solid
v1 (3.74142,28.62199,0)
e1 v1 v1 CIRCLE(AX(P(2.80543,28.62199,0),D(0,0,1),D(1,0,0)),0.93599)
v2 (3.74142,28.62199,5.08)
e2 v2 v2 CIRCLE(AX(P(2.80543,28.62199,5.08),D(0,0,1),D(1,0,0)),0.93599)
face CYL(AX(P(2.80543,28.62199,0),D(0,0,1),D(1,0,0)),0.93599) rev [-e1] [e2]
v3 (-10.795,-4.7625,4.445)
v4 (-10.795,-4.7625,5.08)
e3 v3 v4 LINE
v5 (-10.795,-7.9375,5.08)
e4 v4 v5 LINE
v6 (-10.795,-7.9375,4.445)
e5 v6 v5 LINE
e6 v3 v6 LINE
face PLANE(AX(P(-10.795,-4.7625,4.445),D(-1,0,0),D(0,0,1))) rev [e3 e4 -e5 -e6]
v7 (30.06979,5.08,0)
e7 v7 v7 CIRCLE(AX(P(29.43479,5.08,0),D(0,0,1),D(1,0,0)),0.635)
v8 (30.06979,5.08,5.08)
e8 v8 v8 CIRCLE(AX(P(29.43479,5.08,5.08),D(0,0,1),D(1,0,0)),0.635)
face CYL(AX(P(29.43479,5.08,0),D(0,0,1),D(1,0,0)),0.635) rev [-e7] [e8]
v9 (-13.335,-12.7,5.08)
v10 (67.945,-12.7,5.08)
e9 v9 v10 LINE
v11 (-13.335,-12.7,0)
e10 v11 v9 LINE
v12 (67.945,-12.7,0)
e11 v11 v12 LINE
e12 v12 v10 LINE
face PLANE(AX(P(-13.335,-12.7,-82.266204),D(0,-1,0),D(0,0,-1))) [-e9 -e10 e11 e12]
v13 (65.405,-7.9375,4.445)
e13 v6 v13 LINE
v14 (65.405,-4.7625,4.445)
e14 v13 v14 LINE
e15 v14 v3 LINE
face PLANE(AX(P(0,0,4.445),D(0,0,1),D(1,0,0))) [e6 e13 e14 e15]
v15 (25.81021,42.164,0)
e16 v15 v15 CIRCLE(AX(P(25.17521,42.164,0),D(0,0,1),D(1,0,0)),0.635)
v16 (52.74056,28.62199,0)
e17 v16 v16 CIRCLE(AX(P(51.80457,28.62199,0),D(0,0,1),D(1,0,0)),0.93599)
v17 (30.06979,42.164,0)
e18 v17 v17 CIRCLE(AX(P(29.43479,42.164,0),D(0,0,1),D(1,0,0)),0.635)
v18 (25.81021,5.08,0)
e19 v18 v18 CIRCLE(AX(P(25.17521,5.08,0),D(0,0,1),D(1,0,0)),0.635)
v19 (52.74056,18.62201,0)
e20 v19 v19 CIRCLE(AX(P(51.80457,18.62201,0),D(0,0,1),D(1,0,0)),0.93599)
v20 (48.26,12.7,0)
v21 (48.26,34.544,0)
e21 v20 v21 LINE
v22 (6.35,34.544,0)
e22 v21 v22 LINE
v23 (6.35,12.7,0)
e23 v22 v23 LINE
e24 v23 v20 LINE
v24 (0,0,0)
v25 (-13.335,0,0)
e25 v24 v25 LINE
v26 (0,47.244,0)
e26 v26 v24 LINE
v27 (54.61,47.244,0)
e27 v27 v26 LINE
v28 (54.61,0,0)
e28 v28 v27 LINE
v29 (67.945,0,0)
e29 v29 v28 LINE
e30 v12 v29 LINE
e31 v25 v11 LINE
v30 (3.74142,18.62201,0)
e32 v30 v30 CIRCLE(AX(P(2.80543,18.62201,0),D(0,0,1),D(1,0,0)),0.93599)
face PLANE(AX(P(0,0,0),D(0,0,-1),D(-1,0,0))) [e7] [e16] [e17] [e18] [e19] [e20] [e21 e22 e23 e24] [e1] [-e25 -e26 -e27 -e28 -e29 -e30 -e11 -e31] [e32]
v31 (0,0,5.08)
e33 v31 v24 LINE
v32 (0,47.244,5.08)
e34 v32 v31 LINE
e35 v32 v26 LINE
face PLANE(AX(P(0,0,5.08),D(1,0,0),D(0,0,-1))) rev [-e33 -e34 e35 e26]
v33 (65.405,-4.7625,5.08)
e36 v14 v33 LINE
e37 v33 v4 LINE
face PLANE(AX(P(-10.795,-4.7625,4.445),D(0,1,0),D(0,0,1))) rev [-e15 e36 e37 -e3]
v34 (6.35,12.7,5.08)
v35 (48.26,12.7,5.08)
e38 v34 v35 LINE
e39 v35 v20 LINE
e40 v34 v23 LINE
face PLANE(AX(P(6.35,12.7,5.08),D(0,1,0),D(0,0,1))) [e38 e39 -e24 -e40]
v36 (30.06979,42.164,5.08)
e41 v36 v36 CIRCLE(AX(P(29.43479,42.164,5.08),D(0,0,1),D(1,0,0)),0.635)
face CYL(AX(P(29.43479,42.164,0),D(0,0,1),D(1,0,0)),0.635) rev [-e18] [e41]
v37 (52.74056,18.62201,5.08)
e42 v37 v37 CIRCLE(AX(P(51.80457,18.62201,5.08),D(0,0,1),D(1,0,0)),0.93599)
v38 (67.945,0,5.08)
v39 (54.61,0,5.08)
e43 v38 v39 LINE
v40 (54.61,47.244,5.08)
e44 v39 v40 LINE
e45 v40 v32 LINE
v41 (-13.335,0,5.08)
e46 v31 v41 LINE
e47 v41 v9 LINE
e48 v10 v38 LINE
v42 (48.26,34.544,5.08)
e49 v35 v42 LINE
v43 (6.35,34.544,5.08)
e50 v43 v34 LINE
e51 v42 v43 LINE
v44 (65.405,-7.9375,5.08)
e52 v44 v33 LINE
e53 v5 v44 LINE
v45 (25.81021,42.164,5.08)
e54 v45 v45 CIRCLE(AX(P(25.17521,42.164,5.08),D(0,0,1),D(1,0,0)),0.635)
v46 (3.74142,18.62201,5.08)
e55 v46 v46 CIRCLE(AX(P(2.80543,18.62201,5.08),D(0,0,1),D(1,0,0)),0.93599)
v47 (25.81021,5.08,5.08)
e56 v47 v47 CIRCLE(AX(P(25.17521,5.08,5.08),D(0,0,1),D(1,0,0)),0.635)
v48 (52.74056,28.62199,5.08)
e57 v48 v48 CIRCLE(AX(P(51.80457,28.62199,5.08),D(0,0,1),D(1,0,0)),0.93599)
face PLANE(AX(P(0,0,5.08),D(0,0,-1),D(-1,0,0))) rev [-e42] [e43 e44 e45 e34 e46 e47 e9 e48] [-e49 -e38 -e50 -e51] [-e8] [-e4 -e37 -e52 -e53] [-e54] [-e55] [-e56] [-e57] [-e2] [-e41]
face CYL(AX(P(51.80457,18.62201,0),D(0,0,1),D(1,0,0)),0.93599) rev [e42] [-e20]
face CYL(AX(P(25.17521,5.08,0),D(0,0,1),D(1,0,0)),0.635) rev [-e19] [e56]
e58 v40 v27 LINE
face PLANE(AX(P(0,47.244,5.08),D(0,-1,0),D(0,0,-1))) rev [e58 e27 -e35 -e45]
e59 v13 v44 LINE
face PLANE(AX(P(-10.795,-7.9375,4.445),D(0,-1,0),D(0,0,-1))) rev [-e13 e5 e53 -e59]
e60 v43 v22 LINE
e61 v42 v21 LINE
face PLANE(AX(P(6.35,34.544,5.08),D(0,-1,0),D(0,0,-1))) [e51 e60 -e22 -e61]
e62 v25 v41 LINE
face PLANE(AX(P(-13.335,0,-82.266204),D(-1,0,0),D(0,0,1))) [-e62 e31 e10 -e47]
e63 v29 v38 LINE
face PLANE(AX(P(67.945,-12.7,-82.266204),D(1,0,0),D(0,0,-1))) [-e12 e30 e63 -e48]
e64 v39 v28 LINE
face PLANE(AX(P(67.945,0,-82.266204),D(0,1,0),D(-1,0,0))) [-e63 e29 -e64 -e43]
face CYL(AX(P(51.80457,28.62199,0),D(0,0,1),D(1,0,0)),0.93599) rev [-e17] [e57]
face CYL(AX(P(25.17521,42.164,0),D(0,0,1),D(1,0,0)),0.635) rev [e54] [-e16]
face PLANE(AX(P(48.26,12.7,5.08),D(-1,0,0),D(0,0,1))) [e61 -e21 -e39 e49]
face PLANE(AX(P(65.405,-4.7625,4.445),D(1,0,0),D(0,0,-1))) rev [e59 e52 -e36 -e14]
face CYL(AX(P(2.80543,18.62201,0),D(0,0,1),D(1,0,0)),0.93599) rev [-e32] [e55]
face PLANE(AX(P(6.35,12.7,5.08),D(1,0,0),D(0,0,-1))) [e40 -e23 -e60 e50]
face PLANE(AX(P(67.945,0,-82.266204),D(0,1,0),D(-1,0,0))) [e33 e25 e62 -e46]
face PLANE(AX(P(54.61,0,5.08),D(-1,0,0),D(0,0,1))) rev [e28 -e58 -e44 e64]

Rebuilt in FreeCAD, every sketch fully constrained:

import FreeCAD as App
import Part
import Sketcher
Q = App.Units.Quantity


def add_polygon(sketch, points):
    """Adds a closed chain of lines whose ends are joined by coincident constraints."""
    first, n = sketch.GeometryCount, len(points)
    for a, b in zip(points, points[1:] + points[:1]):
        sketch.addGeometry(Part.LineSegment(App.Vector(*a, 0), App.Vector(*b, 0)), False)
    for i in range(n):
        sketch.addConstraint(Sketcher.Constraint("Coincident", first + i, 2, first + (i + 1) % n, 1))

doc = App.newDocument("Part")
body = doc.addObject("PartDesign::Body", "Body")

sketch1 = body.newObject("Sketcher::SketchObject", "Sketch")
sketch1.AttachmentSupport = (doc.getObject("XY_Plane"), [""])
sketch1.MapMode = "FlatFace"
add_polygon(sketch1, [(0, 47), (0, 0), (55, 0), (55, 47)])
add_polygon(sketch1, [(48, 13), (6, 13), (6, 35), (48, 35)])
sketch1.addConstraint([
    Sketcher.Constraint("Vertical", 0),
    Sketcher.Constraint("Horizontal", 1),
    Sketcher.Constraint("Vertical", 2),
    Sketcher.Constraint("Horizontal", 3),
    Sketcher.Constraint("Horizontal", 4),
    Sketcher.Constraint("Vertical", 5),
    Sketcher.Constraint("Horizontal", 6),
    Sketcher.Constraint("Vertical", 7),
    Sketcher.Constraint("Coincident", 0, 2, -1, 1),
    Sketcher.Constraint("DistanceX", 1, 1, 1, 2, Q("2.15 in")),
    Sketcher.Constraint("DistanceX", 4, 2, 4, 1, Q("1.65 in")),
    Sketcher.Constraint("DistanceY", 0, 2, 0, 1, Q("1.86 in")),
    Sketcher.Constraint("DistanceY", 5, 1, 5, 2, Q("0.86 in")),
    Sketcher.Constraint("DistanceY", -1, 1, 4, 2, Q("0.5 in")),
    Sketcher.Constraint("DistanceX", -1, 1, 6, 2, Q("1.9 in")),
])
pad1 = body.newObject("PartDesign::Pad", "Pad")
pad1.Profile = sketch1
pad1.Length = Q("0.2 in")

sketch2 = body.newObject("Sketcher::SketchObject", "Sketch001")
sketch2.AttachmentSupport = (doc.getObject("XY_Plane"), [""])
sketch2.MapMode = "FlatFace"
sketch2.AttachmentOffset = App.Placement(App.Vector(0, 0, 0.2 * 25.4), App.Rotation())
sketch2.addGeometry([
    Part.Circle(App.Vector(2.8, 28.6, 0), App.Vector(0, 0, 1), 0.9),
    Part.Circle(App.Vector(2.8, 18.6, 0), App.Vector(0, 0, 1), 0.9),
    Part.Circle(App.Vector(51.8, 28.6, 0), App.Vector(0, 0, 1), 0.9),
    Part.Circle(App.Vector(51.8, 18.6, 0), App.Vector(0, 0, 1), 0.9),
    Part.Circle(App.Vector(25.2, 5.1, 0), App.Vector(0, 0, 1), 0.6),
    Part.Circle(App.Vector(29.4, 5.1, 0), App.Vector(0, 0, 1), 0.6),
    Part.Circle(App.Vector(29.4, 42.2, 0), App.Vector(0, 0, 1), 0.6),
    Part.Circle(App.Vector(25.2, 42.2, 0), App.Vector(0, 0, 1), 0.6),
], False)
sketch2.addConstraint([
    Sketcher.Constraint("Equal", 0, 1),
    Sketcher.Constraint("Equal", 1, 2),
    Sketcher.Constraint("Equal", 2, 3),
    Sketcher.Constraint("Equal", 4, 5),
    Sketcher.Constraint("Equal", 5, 6),
    Sketcher.Constraint("Equal", 6, 7),
    Sketcher.Constraint("Horizontal", 0, 3, 2, 3),
    Sketcher.Constraint("Horizontal", 1, 3, 3, 3),
    Sketcher.Constraint("Horizontal", 4, 3, 5, 3),
    Sketcher.Constraint("Horizontal", 6, 3, 7, 3),
    Sketcher.Constraint("Vertical", 0, 3, 1, 3),
    Sketcher.Constraint("Vertical", 2, 3, 3, 3),
    Sketcher.Constraint("Vertical", 5, 3, 6, 3),
    Sketcher.Constraint("Vertical", 4, 3, 7, 3),
    Sketcher.Constraint("Diameter", 4, Q("0.05 in")),
    Sketcher.Constraint("Diameter", 0, Q("0.0737 in")),
    Sketcher.Constraint("DistanceY", -1, 1, 4, 3, Q("0.2 in")),
    Sketcher.Constraint("DistanceY", -1, 1, 6, 3, Q("1.66 in")),
    Sketcher.Constraint("DistanceY", 1, 3, 0, 3, Q("0.3937 in")),
    Sketcher.Constraint("DistanceX", 0, 3, 2, 3, Q("1.9291 in")),
    Sketcher.Constraint("DistanceX", 1, 3, 4, 3, Q("0.8807 in")),
    Sketcher.Constraint("DistanceX", 4, 3, 5, 3, Q("0.1677 in")),
    Sketcher.Constraint("DistanceX", -1, 1, 0, 3, Q("2.80543 mm")),
    Sketcher.Constraint("DistanceY", -1, 1, 0, 3, Q("28.62199 mm")),
])
pocket1 = body.newObject("PartDesign::Pocket", "Pocket")
pocket1.Profile = sketch2
pocket1.Type = "ThroughAll"

sketch3 = body.newObject("Sketcher::SketchObject", "Sketch002")
sketch3.AttachmentSupport = (doc.getObject("XY_Plane"), [""])
sketch3.MapMode = "FlatFace"
sketch3.AttachmentOffset = App.Placement(App.Vector(0, 0, 0.2 * 25.4), App.Rotation())
add_polygon(sketch3, [(-13, 0), (-13, -13), (68, -13), (68, 0)])
sketch3.addConstraint([
    Sketcher.Constraint("Vertical", 0),
    Sketcher.Constraint("Horizontal", 1),
    Sketcher.Constraint("Vertical", 2),
    Sketcher.Constraint("Horizontal", 3),
    Sketcher.Constraint("PointOnObject", 2, 2, -1),
    Sketcher.Constraint("DistanceX", 1, 1, 1, 2, Q("3.2 in")),
    Sketcher.Constraint("DistanceY", 0, 2, 0, 1, Q("0.5 in")),
    Sketcher.Constraint("DistanceX", 0, 2, -1, 1, Q("0.525 in")),
])
pad2 = body.newObject("PartDesign::Pad", "Pad001")
pad2.Profile = sketch3
pad2.Length = Q("0.2 in")
pad2.Reversed = True

sketch4 = body.newObject("Sketcher::SketchObject", "Sketch003")
sketch4.AttachmentSupport = (doc.getObject("XY_Plane"), [""])
sketch4.MapMode = "FlatFace"
sketch4.AttachmentOffset = App.Placement(App.Vector(0, 0, 0.2 * 25.4), App.Rotation())
add_polygon(sketch4, [(-10.8, -4.8), (-10.8, -7.9), (65.4, -7.9), (65.4, -4.8)])
sketch4.addConstraint([
    Sketcher.Constraint("Vertical", 0),
    Sketcher.Constraint("Horizontal", 1),
    Sketcher.Constraint("Vertical", 2),
    Sketcher.Constraint("Horizontal", 3),
    Sketcher.Constraint("DistanceX", 1, 1, 1, 2, Q("3 in")),
    Sketcher.Constraint("DistanceY", 0, 2, 0, 1, Q("0.125 in")),
    Sketcher.Constraint("DistanceX", 0, 2, -1, 1, Q("0.425 in")),
    Sketcher.Constraint("DistanceY", 0, 2, -1, 1, Q("0.3125 in")),
])
pocket2 = body.newObject("PartDesign::Pocket", "Pocket001")
pocket2.Profile = sketch4
pocket2.Length = Q("0.025 in")

doc.recompute()
